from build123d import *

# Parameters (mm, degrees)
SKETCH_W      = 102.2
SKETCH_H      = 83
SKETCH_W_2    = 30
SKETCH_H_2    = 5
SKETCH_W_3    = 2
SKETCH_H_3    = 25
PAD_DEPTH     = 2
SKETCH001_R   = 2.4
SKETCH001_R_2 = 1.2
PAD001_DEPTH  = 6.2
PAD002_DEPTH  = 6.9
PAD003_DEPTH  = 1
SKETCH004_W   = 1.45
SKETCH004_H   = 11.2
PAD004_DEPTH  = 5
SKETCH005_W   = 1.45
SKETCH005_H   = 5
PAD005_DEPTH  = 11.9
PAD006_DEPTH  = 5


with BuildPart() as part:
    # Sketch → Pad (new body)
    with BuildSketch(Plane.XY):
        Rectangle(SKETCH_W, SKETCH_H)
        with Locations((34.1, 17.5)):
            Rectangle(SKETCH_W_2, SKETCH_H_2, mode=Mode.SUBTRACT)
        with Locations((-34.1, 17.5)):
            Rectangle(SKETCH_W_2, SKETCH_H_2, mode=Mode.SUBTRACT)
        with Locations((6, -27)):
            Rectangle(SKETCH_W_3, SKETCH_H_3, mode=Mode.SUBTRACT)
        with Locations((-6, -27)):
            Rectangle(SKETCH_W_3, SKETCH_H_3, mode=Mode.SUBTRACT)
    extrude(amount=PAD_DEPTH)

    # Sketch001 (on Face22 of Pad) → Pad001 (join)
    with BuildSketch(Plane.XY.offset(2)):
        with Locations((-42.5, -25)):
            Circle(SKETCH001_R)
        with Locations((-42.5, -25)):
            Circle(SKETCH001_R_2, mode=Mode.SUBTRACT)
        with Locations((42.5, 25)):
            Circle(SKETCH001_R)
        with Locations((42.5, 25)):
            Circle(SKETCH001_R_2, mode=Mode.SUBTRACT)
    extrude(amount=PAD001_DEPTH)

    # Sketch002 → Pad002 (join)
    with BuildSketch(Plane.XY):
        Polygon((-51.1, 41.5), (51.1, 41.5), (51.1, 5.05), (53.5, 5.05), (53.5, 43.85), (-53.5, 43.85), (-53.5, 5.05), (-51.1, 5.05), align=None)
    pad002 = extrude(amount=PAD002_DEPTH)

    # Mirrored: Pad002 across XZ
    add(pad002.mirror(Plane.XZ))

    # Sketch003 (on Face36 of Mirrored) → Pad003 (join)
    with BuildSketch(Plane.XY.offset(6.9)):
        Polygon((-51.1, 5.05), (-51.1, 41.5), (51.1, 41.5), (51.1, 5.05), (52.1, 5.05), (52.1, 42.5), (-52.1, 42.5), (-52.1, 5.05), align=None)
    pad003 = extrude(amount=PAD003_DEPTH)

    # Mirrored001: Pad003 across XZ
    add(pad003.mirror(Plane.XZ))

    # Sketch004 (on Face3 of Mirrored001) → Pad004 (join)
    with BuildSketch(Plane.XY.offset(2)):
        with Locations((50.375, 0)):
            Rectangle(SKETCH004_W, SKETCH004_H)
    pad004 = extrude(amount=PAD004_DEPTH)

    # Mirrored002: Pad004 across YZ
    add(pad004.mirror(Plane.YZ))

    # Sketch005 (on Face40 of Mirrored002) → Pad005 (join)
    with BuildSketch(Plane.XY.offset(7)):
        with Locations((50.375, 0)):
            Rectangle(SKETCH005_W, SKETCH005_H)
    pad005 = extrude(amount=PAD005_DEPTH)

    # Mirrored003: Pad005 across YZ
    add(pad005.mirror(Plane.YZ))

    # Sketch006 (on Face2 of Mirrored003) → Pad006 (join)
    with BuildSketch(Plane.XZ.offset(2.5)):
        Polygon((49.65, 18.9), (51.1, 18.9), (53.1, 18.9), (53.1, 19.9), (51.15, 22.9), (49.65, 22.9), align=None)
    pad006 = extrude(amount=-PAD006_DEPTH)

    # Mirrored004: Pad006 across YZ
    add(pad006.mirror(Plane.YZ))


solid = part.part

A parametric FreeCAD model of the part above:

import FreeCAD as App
import Part
import Sketcher

V = App.Vector
Q = App.Units.Quantity

doc = App.newDocument("Part")
body = doc.addObject("PartDesign::Body", "Body")

sketch1 = doc.addObject("Sketcher::SketchObject", "Sketch")
body.addObject(sketch1)
sketch1.AttachmentSupport = (doc.XY_Plane, [""])
sketch1.MapMode = "FlatFace"
sketch1.addGeometry(Part.LineSegment(V(-51.1, 41.5, 0), V(-51.1, -41.5, 0)), False)
sketch1.addGeometry(Part.LineSegment(V(-51.1, -41.5, 0), V(51.1, -41.5, 0)), False)
sketch1.addGeometry(Part.LineSegment(V(51.1, -41.5, 0), V(51.1, 41.5, 0)), False)
sketch1.addGeometry(Part.LineSegment(V(51.1, 41.5, 0), V(-51.1, 41.5, 0)), False)
sketch1.addGeometry(Part.LineSegment(V(-5, -39.5, 0), V(-7, -39.5, 0)), False)
sketch1.addGeometry(Part.LineSegment(V(-7, -39.5, 0), V(-7, -14.5, 0)), False)
sketch1.addGeometry(Part.LineSegment(V(-7, -14.5, 0), V(-5, -14.5, 0)), False)
sketch1.addGeometry(Part.LineSegment(V(-5, -14.5, 0), V(-5, -39.5, 0)), False)
sketch1.addGeometry(Part.LineSegment(V(7, -39.5, 0), V(5, -39.5, 0)), False)
sketch1.addGeometry(Part.LineSegment(V(5, -39.5, 0), V(5, -14.5, 0)), False)
sketch1.addGeometry(Part.LineSegment(V(5, -14.5, 0), V(7, -14.5, 0)), False)
sketch1.addGeometry(Part.LineSegment(V(7, -14.5, 0), V(7, -39.5, 0)), False)
sketch1.addGeometry(Part.LineSegment(V(-19.1, 15, 0), V(-49.1, 15, 0)), False)
sketch1.addGeometry(Part.LineSegment(V(-49.1, 15, 0), V(-49.1, 20, 0)), False)
sketch1.addGeometry(Part.LineSegment(V(-49.1, 20, 0), V(-19.1, 20, 0)), False)
sketch1.addGeometry(Part.LineSegment(V(-19.1, 20, 0), V(-19.1, 15, 0)), False)
sketch1.addGeometry(Part.LineSegment(V(49.1, 15, 0), V(19.1, 15, 0)), False)
sketch1.addGeometry(Part.LineSegment(V(19.1, 15, 0), V(19.1, 20, 0)), False)
sketch1.addGeometry(Part.LineSegment(V(19.1, 20, 0), V(49.1, 20, 0)), False)
sketch1.addGeometry(Part.LineSegment(V(49.1, 20, 0), V(49.1, 15, 0)), False)
sketch1.addConstraint(Sketcher.Constraint("Coincident", 0, 2, 1, 1))
sketch1.addConstraint(Sketcher.Constraint("Coincident", 1, 2, 2, 1))
sketch1.addConstraint(Sketcher.Constraint("Coincident", 2, 2, 3, 1))
sketch1.addConstraint(Sketcher.Constraint("Coincident", 3, 2, 0, 1))
sketch1.addConstraint(Sketcher.Constraint("Coincident", 4, 2, 5, 1))
sketch1.addConstraint(Sketcher.Constraint("Coincident", 5, 2, 6, 1))
sketch1.addConstraint(Sketcher.Constraint("Coincident", 6, 2, 7, 1))
sketch1.addConstraint(Sketcher.Constraint("Coincident", 7, 2, 4, 1))
sketch1.addConstraint(Sketcher.Constraint("Coincident", 8, 2, 9, 1))
sketch1.addConstraint(Sketcher.Constraint("Coincident", 9, 2, 10, 1))
sketch1.addConstraint(Sketcher.Constraint("Coincident", 10, 2, 11, 1))
sketch1.addConstraint(Sketcher.Constraint("Coincident", 11, 2, 8, 1))
sketch1.addConstraint(Sketcher.Constraint("Coincident", 12, 2, 13, 1))
sketch1.addConstraint(Sketcher.Constraint("Coincident", 13, 2, 14, 1))
sketch1.addConstraint(Sketcher.Constraint("Coincident", 14, 2, 15, 1))
sketch1.addConstraint(Sketcher.Constraint("Coincident", 15, 2, 12, 1))
sketch1.addConstraint(Sketcher.Constraint("Coincident", 16, 2, 17, 1))
sketch1.addConstraint(Sketcher.Constraint("Coincident", 17, 2, 18, 1))
sketch1.addConstraint(Sketcher.Constraint("Coincident", 18, 2, 19, 1))
sketch1.addConstraint(Sketcher.Constraint("Coincident", 19, 2, 16, 1))
sketch1.addConstraint(Sketcher.Constraint("Vertical", 0))
sketch1.addConstraint(Sketcher.Constraint("Horizontal", 1))
sketch1.addConstraint(Sketcher.Constraint("Vertical", 2))
sketch1.addConstraint(Sketcher.Constraint("Horizontal", 3))
sketch1.addConstraint(Sketcher.Constraint("Horizontal", 4))
sketch1.addConstraint(Sketcher.Constraint("Vertical", 5))
sketch1.addConstraint(Sketcher.Constraint("Horizontal", 6))
sketch1.addConstraint(Sketcher.Constraint("Vertical", 7))
sketch1.addConstraint(Sketcher.Constraint("Horizontal", 8))
sketch1.addConstraint(Sketcher.Constraint("Vertical", 9))
sketch1.addConstraint(Sketcher.Constraint("Horizontal", 10))
sketch1.addConstraint(Sketcher.Constraint("Vertical", 11))
sketch1.addConstraint(Sketcher.Constraint("Horizontal", 12))
sketch1.addConstraint(Sketcher.Constraint("Vertical", 13))
sketch1.addConstraint(Sketcher.Constraint("Horizontal", 14))
sketch1.addConstraint(Sketcher.Constraint("Vertical", 15))
sketch1.addConstraint(Sketcher.Constraint("Horizontal", 16))
sketch1.addConstraint(Sketcher.Constraint("Vertical", 17))
sketch1.addConstraint(Sketcher.Constraint("Horizontal", 18))
sketch1.addConstraint(Sketcher.Constraint("Vertical", 19))
sketch1.addConstraint(Sketcher.Constraint("Symmetric", 0, 2, 2, 2, -1, 1))
sketch1.addConstraint(Sketcher.Constraint("Symmetric", 7, 2, 8, 2, -2))
sketch1.addConstraint(Sketcher.Constraint("Symmetric", 5, 2, 10, 2, -2))
sketch1.addConstraint(Sketcher.Constraint("Symmetric", 15, 2, 16, 2, -2))
sketch1.addConstraint(Sketcher.Constraint("Symmetric", 13, 2, 18, 2, -2))
sketch1.addConstraint(Sketcher.Constraint("DistanceX", 4, 2, 4, 1, Q("2 mm")))
sketch1.addConstraint(Sketcher.Constraint("DistanceX", 12, 2, 12, 1, Q("30 mm")))
sketch1.addConstraint(Sketcher.Constraint("DistanceY", 0, 2, 0, 1, Q("83 mm")))
sketch1.addConstraint(Sketcher.Constraint("DistanceY", 5, 1, 5, 2, Q("25 mm")))
sketch1.addConstraint(Sketcher.Constraint("DistanceY", 13, 1, 13, 2, Q("5 mm")))
sketch1.addConstraint(Sketcher.Constraint("DistanceX", 1, 1, 1, 2, Q("102.2 mm")))
sketch1.addConstraint(Sketcher.Constraint("DistanceX", 4, 2, -1, 1, Q("7 mm")))
sketch1.addConstraint(Sketcher.Constraint("DistanceY", -1, 1, 12, 2, Q("15 mm")))
sketch1.addConstraint(Sketcher.Constraint("DistanceY", 0, 2, 4, 2, Q("2 mm")))
sketch1.addConstraint(Sketcher.Constraint("DistanceX", 3, 2, 12, 2, Q("2 mm")))
pad1 = doc.addObject("PartDesign::Pad", "Pad")
body.addObject(pad1)
pad1.Profile = sketch1
pad1.Length = 2

sketch2 = doc.addObject("Sketcher::SketchObject", "Sketch001")
body.addObject(sketch2)
sketch2.AttachmentSupport = (doc.XY_Plane, [""])
sketch2.MapMode = "FlatFace"
sketch2.AttachmentOffset = App.Placement(V(0, 0, 2), App.Rotation())
sketch2.addGeometry(Part.Circle(V(-42.5, -25, 0), V(0, 0, 1), 2.4), False)
sketch2.addGeometry(Part.Circle(V(-42.5, -25, 0), V(0, 0, 1), 1.2), False)
sketch2.addGeometry(Part.Circle(V(42.5, 25, 0), V(0, 0, 1), 2.4), False)
sketch2.addGeometry(Part.Circle(V(42.5, 25, 0), V(0, 0, 1), 1.2), False)
sketch2.addConstraint(Sketcher.Constraint("Coincident", 1, 3, 0, 3))
sketch2.addConstraint(Sketcher.Constraint("Coincident", 3, 3, 2, 3))
sketch2.addConstraint(Sketcher.Constraint("Equal", 0, 2))
sketch2.addConstraint(Sketcher.Constraint("Equal", 1, 3))
sketch2.addConstraint(Sketcher.Constraint("Symmetric", 0, 3, 2, 3, -1, 1))
sketch2.addConstraint(Sketcher.Constraint("Diameter", 0, Q("4.8 mm")))
sketch2.addConstraint(Sketcher.Constraint("Diameter", 1, Q("2.4 mm")))
sketch2.addConstraint(Sketcher.Constraint("DistanceY", 0, 3, -1, 1, Q("25 mm")))
sketch2.addConstraint(Sketcher.Constraint("DistanceX", 0, 3, 2, 3, Q("85 mm")))
pad2 = doc.addObject("PartDesign::Pad", "Pad001")
body.addObject(pad2)
pad2.Profile = sketch2
pad2.Length = 6.2

sketch3 = doc.addObject("Sketcher::SketchObject", "Sketch002")
body.addObject(sketch3)
sketch3.AttachmentSupport = (doc.XY_Plane, [""])
sketch3.MapMode = "FlatFace"
sketch3.addGeometry(Part.LineSegment(V(-51.1, 41.5, 0), V(51.1, 41.5, 0)), False)
sketch3.addGeometry(Part.LineSegment(V(51.1, 41.5, 0), V(51.1, 5, 0)), False)
sketch3.addGeometry(Part.LineSegment(V(51.1, 5, 0), V(53.5, 5, 0)), False)
sketch3.addGeometry(Part.LineSegment(V(53.5, 5, 0), V(53.5, 43.9, 0)), False)
sketch3.addGeometry(Part.LineSegment(V(53.5, 43.9, 0), V(-53.5, 43.9, 0)), False)
sketch3.addGeometry(Part.LineSegment(V(-53.5, 43.9, 0), V(-53.5, 5, 0)), False)
sketch3.addGeometry(Part.LineSegment(V(-53.5, 5, 0), V(-51.1, 5, 0)), False)
sketch3.addGeometry(Part.LineSegment(V(-51.1, 5, 0), V(-51.1, 41.5, 0)), False)
sketch3.addConstraint(Sketcher.Constraint("Coincident", 0, 2, 1, 1))
sketch3.addConstraint(Sketcher.Constraint("Coincident", 1, 2, 2, 1))
sketch3.addConstraint(Sketcher.Constraint("Coincident", 2, 2, 3, 1))
sketch3.addConstraint(Sketcher.Constraint("Coincident", 3, 2, 4, 1))
sketch3.addConstraint(Sketcher.Constraint("Coincident", 4, 2, 5, 1))
sketch3.addConstraint(Sketcher.Constraint("Coincident", 5, 2, 6, 1))
sketch3.addConstraint(Sketcher.Constraint("Coincident", 6, 2, 7, 1))
sketch3.addConstraint(Sketcher.Constraint("Coincident", 7, 2, 0, 1))
sketch3.addConstraint(Sketcher.Constraint("Horizontal", 0))
sketch3.addConstraint(Sketcher.Constraint("Vertical", 1))
sketch3.addConstraint(Sketcher.Constraint("Horizontal", 2))
sketch3.addConstraint(Sketcher.Constraint("Vertical", 3))
sketch3.addConstraint(Sketcher.Constraint("Horizontal", 4))
sketch3.addConstraint(Sketcher.Constraint("Vertical", 5))
sketch3.addConstraint(Sketcher.Constraint("Horizontal", 6))
sketch3.addConstraint(Sketcher.Constraint("Vertical", 7))
sketch3.addConstraint(Sketcher.Constraint("Symmetric", 2, 2, 5, 2, -2))
sketch3.addConstraint(Sketcher.Constraint("Equal", 2, 6))
sketch3.addConstraint(Sketcher.Constraint("DistanceX", 4, 2, 4, 1, Q("107 mm")))
sketch3.addConstraint(Sketcher.Constraint("DistanceX", 0, 1, 0, 2, Q("102.2 mm")))
sketch3.addConstraint(Sketcher.Constraint("DistanceY", 3, 1, 3, 2, Q("38.8 mm")))
sketch3.addConstraint(Sketcher.Constraint("DistanceY", 1, 2, 1, 1, Q("36.45 mm")))
sketch3.addConstraint(Sketcher.Constraint("DistanceY", -1, 1, 0, 2, Q("41.5 mm")))
pad3 = doc.addObject("PartDesign::Pad", "Pad002")
body.addObject(pad3)
pad3.Profile = sketch3
pad3.Length = 6.9
doc.recompute()

mirrored = doc.addObject("PartDesign::Mirrored", "Mirrored")
body.addObject(mirrored)
mirrored.Originals = [pad3]
mirrored.MirrorPlane = (doc.XZ_Plane, [""])
body.Tip = mirrored

sketch4 = doc.addObject("Sketcher::SketchObject", "Sketch003")
body.addObject(sketch4)
sketch4.AttachmentSupport = (doc.XY_Plane, [""])
sketch4.MapMode = "FlatFace"
sketch4.AttachmentOffset = App.Placement(V(0, 0, 6.9), App.Rotation())
sketch4.addGeometry(Part.LineSegment(V(-51.1, 5, 0), V(-51.1, 41.5, 0)), False)
sketch4.addGeometry(Part.LineSegment(V(-51.1, 41.5, 0), V(51.1, 41.5, 0)), False)
sketch4.addGeometry(Part.LineSegment(V(51.1, 41.5, 0), V(51.1, 5, 0)), False)
sketch4.addGeometry(Part.LineSegment(V(51.1, 5, 0), V(52.1, 5, 0)), False)
sketch4.addGeometry(Part.LineSegment(V(52.1, 5, 0), V(52.1, 42.5, 0)), False)
sketch4.addGeometry(Part.LineSegment(V(52.1, 42.5, 0), V(-52.1, 42.5, 0)), False)
sketch4.addGeometry(Part.LineSegment(V(-52.1, 42.5, 0), V(-52.1, 5, 0)), False)
sketch4.addGeometry(Part.LineSegment(V(-52.1, 5, 0), V(-51.1, 5, 0)), False)
sketch4.addConstraint(Sketcher.Constraint("Coincident", 0, 2, 1, 1))
sketch4.addConstraint(Sketcher.Constraint("Coincident", 1, 2, 2, 1))
sketch4.addConstraint(Sketcher.Constraint("Coincident", 2, 2, 3, 1))
sketch4.addConstraint(Sketcher.Constraint("Coincident", 3, 2, 4, 1))
sketch4.addConstraint(Sketcher.Constraint("Coincident", 4, 2, 5, 1))
sketch4.addConstraint(Sketcher.Constraint("Coincident", 5, 2, 6, 1))
sketch4.addConstraint(Sketcher.Constraint("Coincident", 6, 2, 7, 1))
sketch4.addConstraint(Sketcher.Constraint("Coincident", 7, 2, 0, 1))
sketch4.addConstraint(Sketcher.Constraint("Vertical", 0))
sketch4.addConstraint(Sketcher.Constraint("Horizontal", 1))
sketch4.addConstraint(Sketcher.Constraint("Vertical", 2))
sketch4.addConstraint(Sketcher.Constraint("Horizontal", 3))
sketch4.addConstraint(Sketcher.Constraint("Vertical", 4))
sketch4.addConstraint(Sketcher.Constraint("Horizontal", 5))
sketch4.addConstraint(Sketcher.Constraint("Vertical", 6))
sketch4.addConstraint(Sketcher.Constraint("Horizontal", 7))
sketch4.addConstraint(Sketcher.Constraint("Symmetric", 3, 2, 6, 2, -2))
sketch4.addConstraint(Sketcher.Constraint("Equal", 3, 7))
sketch4.addConstraint(Sketcher.Constraint("DistanceX", 3, 1, 3, 2, Q("1 mm")))
sketch4.addConstraint(Sketcher.Constraint("DistanceX", 1, 1, 1, 2, Q("102.2 mm")))
sketch4.addConstraint(Sketcher.Constraint("DistanceY", 1, 2, 4, 2, Q("1 mm")))
sketch4.addConstraint(Sketcher.Constraint("DistanceY", 0, 1, 0, 2, Q("36.45 mm")))
sketch4.addConstraint(Sketcher.Constraint("DistanceY", -1, 1, 0, 2, Q("41.5 mm")))
pad4 = doc.addObject("PartDesign::Pad", "Pad003")
body.addObject(pad4)
pad4.Profile = sketch4
pad4.Length = 1
doc.recompute()

mirrored2 = doc.addObject("PartDesign::Mirrored", "Mirrored001")
body.addObject(mirrored2)
mirrored2.Originals = [pad4]
mirrored2.MirrorPlane = (doc.XZ_Plane, [""])
body.Tip = mirrored2

sketch5 = doc.addObject("Sketcher::SketchObject", "Sketch004")
body.addObject(sketch5)
sketch5.AttachmentSupport = (doc.XY_Plane, [""])
sketch5.MapMode = "FlatFace"
sketch5.AttachmentOffset = App.Placement(V(0, 0, 2), App.Rotation())
sketch5.addGeometry(Part.LineSegment(V(49.6, 5.6, 0), V(49.6, -5.6, 0)), False)
sketch5.addGeometry(Part.LineSegment(V(49.6, -5.6, 0), V(51.1, -5.6, 0)), False)
sketch5.addGeometry(Part.LineSegment(V(51.1, -5.6, 0), V(51.1, 5.6, 0)), False)
sketch5.addGeometry(Part.LineSegment(V(51.1, 5.6, 0), V(49.6, 5.6, 0)), False)
sketch5.addConstraint(Sketcher.Constraint("Coincident", 0, 2, 1, 1))
sketch5.addConstraint(Sketcher.Constraint("Coincident", 1, 2, 2, 1))
sketch5.addConstraint(Sketcher.Constraint("Coincident", 2, 2, 3, 1))
sketch5.addConstraint(Sketcher.Constraint("Coincident", 3, 2, 0, 1))
sketch5.addConstraint(Sketcher.Constraint("Vertical", 0))
sketch5.addConstraint(Sketcher.Constraint("Horizontal", 1))
sketch5.addConstraint(Sketcher.Constraint("Vertical", 2))
sketch5.addConstraint(Sketcher.Constraint("Horizontal", 3))
sketch5.addConstraint(Sketcher.Constraint("DistanceY", 0, 2, 0, 1, Q("11.2 mm")))
sketch5.addConstraint(Sketcher.Constraint("DistanceX", 1, 1, 1, 2, Q("1.45 mm")))
sketch5.addConstraint(Sketcher.Constraint("DistanceY", 0, 2, -1, 1, Q("5.6 mm")))
sketch5.addConstraint(Sketcher.Constraint("DistanceX", -1, 1, 1, 2, Q("51.1 mm")))
pad5 = doc.addObject("PartDesign::Pad", "Pad004")
body.addObject(pad5)
pad5.Profile = sketch5
pad5.Length = 5
doc.recompute()

mirrored3 = doc.addObject("PartDesign::Mirrored", "Mirrored002")
body.addObject(mirrored3)
mirrored3.Originals = [pad5]
mirrored3.MirrorPlane = (doc.YZ_Plane, [""])
body.Tip = mirrored3

sketch6 = doc.addObject("Sketcher::SketchObject", "Sketch005")
body.addObject(sketch6)
sketch6.AttachmentSupport = (doc.XY_Plane, [""])
sketch6.MapMode = "FlatFace"
sketch6.AttachmentOffset = App.Placement(V(0, 0, 7), App.Rotation())
sketch6.addGeometry(Part.LineSegment(V(49.6, 2.5, 0), V(49.6, -2.5, 0)), False)
sketch6.addGeometry(Part.LineSegment(V(49.6, -2.5, 0), V(51.1, -2.5, 0)), False)
sketch6.addGeometry(Part.LineSegment(V(51.1, -2.5, 0), V(51.1, 2.5, 0)), False)
sketch6.addGeometry(Part.LineSegment(V(51.1, 2.5, 0), V(49.6, 2.5, 0)), False)
sketch6.addConstraint(Sketcher.Constraint("Coincident", 0, 2, 1, 1))
sketch6.addConstraint(Sketcher.Constraint("Coincident", 1, 2, 2, 1))
sketch6.addConstraint(Sketcher.Constraint("Coincident", 2, 2, 3, 1))
sketch6.addConstraint(Sketcher.Constraint("Coincident", 3, 2, 0, 1))
sketch6.addConstraint(Sketcher.Constraint("Vertical", 0))
sketch6.addConstraint(Sketcher.Constraint("Horizontal", 1))
sketch6.addConstraint(Sketcher.Constraint("Vertical", 2))
sketch6.addConstraint(Sketcher.Constraint("Horizontal", 3))
sketch6.addConstraint(Sketcher.Constraint("DistanceY", 0, 2, 0, 1, Q("5 mm")))
sketch6.addConstraint(Sketcher.Constraint("DistanceX", 1, 1, 1, 2, Q("1.45 mm")))
sketch6.addConstraint(Sketcher.Constraint("DistanceY", 0, 2, -1, 1, Q("2.5 mm")))
sketch6.addConstraint(Sketcher.Constraint("DistanceX", -1, 1, 1, 2, Q("51.1 mm")))
pad6 = doc.addObject("PartDesign::Pad", "Pad005")
body.addObject(pad6)
pad6.Profile = sketch6
pad6.Length = 11.9
doc.recompute()

mirrored4 = doc.addObject("PartDesign::Mirrored", "Mirrored003")
body.addObject(mirrored4)
mirrored4.Originals = [pad6]
mirrored4.MirrorPlane = (doc.YZ_Plane, [""])
body.Tip = mirrored4

sketch7 = doc.addObject("Sketcher::SketchObject", "Sketch006")
body.addObject(sketch7)
sketch7.AttachmentSupport = (doc.XZ_Plane, [""])
sketch7.MapMode = "FlatFace"
sketch7.AttachmentOffset = App.Placement(V(0, 0, 2.5), App.Rotation())
sketch7.addGeometry(Part.LineSegment(V(49.6, 18.9, 0), V(53.1, 18.9, 0)), False)
sketch7.addGeometry(Part.LineSegment(V(53.1, 18.9, 0), V(53.1, 19.9, 0)), False)
sketch7.addGeometry(Part.LineSegment(V(53.1, 19.9, 0), V(51.1, 22.9, 0)), False)
sketch7.addGeometry(Part.LineSegment(V(51.1, 22.9, 0), V(49.6, 22.9, 0)), False)
sketch7.addGeometry(Part.LineSegment(V(49.6, 22.9, 0), V(49.6, 18.9, 0)), False)
sketch7.addConstraint(Sketcher.Constraint("Coincident", 0, 2, 1, 1))
sketch7.addConstraint(Sketcher.Constraint("Coincident", 1, 2, 2, 1))
sketch7.addConstraint(Sketcher.Constraint("Coincident", 2, 2, 3, 1))
sketch7.addConstraint(Sketcher.Constraint("Coincident", 3, 2, 4, 1))
sketch7.addConstraint(Sketcher.Constraint("Coincident", 4, 2, 0, 1))
sketch7.addConstraint(Sketcher.Constraint("Horizontal", 0))
sketch7.addConstraint(Sketcher.Constraint("Vertical", 1))
sketch7.addConstraint(Sketcher.Constraint("Horizontal", 3))
sketch7.addConstraint(Sketcher.Constraint("Vertical", 4))
sketch7.addConstraint(Sketcher.Constraint("DistanceY", 1, 1, 1, 2, Q("1 mm")))
sketch7.addConstraint(Sketcher.Constraint("DistanceY", 4, 2, 4, 1, Q("4 mm")))
sketch7.addConstraint(Sketcher.Constraint("DistanceX", 3, 2, 3, 1, Q("1.5 mm")))
sketch7.addConstraint(Sketcher.Constraint("DistanceX", 0, 1, 0, 2, Q("3.45 mm")))
sketch7.addConstraint(Sketcher.Constraint("DistanceX", -1, 1, 0, 2, Q("53.1 mm")))
sketch7.addConstraint(Sketcher.Constraint("DistanceY", -1, 1, 0, 2, Q("18.9 mm")))
pad7 = doc.addObject("PartDesign::Pad", "Pad006")
body.addObject(pad7)
pad7.Profile = sketch7
pad7.Length = 5
pad7.Reversed = True
doc.recompute()

mirrored5 = doc.addObject("PartDesign::Mirrored", "Mirrored004")
body.addObject(mirrored5)
mirrored5.Originals = [pad7]
mirrored5.MirrorPlane = (doc.YZ_Plane, [""])
body.Tip = mirrored5

doc.recompute()
